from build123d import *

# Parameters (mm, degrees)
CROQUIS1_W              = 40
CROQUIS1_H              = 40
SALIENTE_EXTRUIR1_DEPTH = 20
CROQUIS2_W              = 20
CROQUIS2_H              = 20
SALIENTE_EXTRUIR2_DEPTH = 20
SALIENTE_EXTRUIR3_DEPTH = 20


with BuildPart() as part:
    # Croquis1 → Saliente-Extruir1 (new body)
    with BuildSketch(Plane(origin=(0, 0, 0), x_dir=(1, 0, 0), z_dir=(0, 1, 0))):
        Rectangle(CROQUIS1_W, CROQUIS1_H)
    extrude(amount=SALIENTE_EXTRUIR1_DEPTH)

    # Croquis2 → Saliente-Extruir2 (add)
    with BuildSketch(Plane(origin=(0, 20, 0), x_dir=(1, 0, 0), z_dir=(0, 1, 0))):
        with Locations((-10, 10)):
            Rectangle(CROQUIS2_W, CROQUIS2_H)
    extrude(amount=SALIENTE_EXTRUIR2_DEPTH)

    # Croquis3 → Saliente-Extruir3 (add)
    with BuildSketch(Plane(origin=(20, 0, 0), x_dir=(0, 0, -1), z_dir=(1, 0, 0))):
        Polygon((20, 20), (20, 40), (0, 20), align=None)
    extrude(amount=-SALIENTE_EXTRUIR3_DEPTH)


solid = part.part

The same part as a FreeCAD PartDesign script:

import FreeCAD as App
import Part
import Sketcher
from FreeCAD import Vector


def add_polygon(sketch, points):
    """Adds a closed chain of lines whose ends are joined by coincident constraints."""
    first, n = sketch.GeometryCount, len(points)
    for a, b in zip(points, points[1:] + points[:1]):
        sketch.addGeometry(Part.LineSegment(App.Vector(*a, 0), App.Vector(*b, 0)), False)
    for i in range(n):
        sketch.addConstraint(Sketcher.Constraint("Coincident", first + i, 2, first + (i + 1) % n, 1))

doc = App.newDocument("Part")
body = doc.addObject("PartDesign::Body", "Body")

# Sketch on XZ plane
sketch1 = doc.addObject("Sketcher::SketchObject", "Sketch")
body.addObject(sketch1)
sketch1.AttachmentSupport = (doc.XZ_Plane, [""])
sketch1.MapMode = "FlatFace"
add_polygon(sketch1, [(-20, -20), (-20, 20), (20, 20), (20, -20)])  # lines 0-3
sketch1.addConstraint(Sketcher.Constraint("Vertical", 0))
sketch1.addConstraint(Sketcher.Constraint("Horizontal", 1))
sketch1.addConstraint(Sketcher.Constraint("Vertical", 2))
sketch1.addConstraint(Sketcher.Constraint("Horizontal", 3))
sketch1.addConstraint(Sketcher.Constraint("Symmetric", 0, 2, 2, 2, -1, 1))
sketch1.addConstraint(Sketcher.Constraint("Equal", 3, 0))
sketch1.addConstraint(Sketcher.Constraint("DistanceX", 1, 1, 1, 2, 40.0))
pad1 = doc.addObject("PartDesign::Pad", "Pad")
body.addObject(pad1)
pad1.Profile = sketch1
pad1.Length = 20
pad1.Reversed = True

# Sketch on XZ plane
sketch2 = doc.addObject("Sketcher::SketchObject", "Sketch001")
body.addObject(sketch2)
sketch2.AttachmentSupport = (doc.XZ_Plane, [""])
sketch2.MapMode = "FlatFace"
sketch2.AttachmentOffset = App.Placement(Vector(0, 0, -20), App.Rotation())
add_polygon(sketch2, [(-20, -20), (-20, 0), (0, 0), (0, -20)])  # lines 0-3
sketch2.addConstraint(Sketcher.Constraint("Vertical", 0))
sketch2.addConstraint(Sketcher.Constraint("Horizontal", 1))
sketch2.addConstraint(Sketcher.Constraint("Vertical", 2))
sketch2.addConstraint(Sketcher.Constraint("Horizontal", 3))
sketch2.addConstraint(Sketcher.Constraint("Coincident", 1, 2, -1, 1))
sketch2.addConstraint(Sketcher.Constraint("Equal", 3, 0))
sketch2.addConstraint(Sketcher.Constraint("DistanceX", 1, 1, 1, 2, 20.0))
pad2 = doc.addObject("PartDesign::Pad", "Pad001")
body.addObject(pad2)
pad2.Profile = sketch2
pad2.Length = 20
pad2.Reversed = True

# Sketch on YZ plane
sketch3 = doc.addObject("Sketcher::SketchObject", "Sketch002")
body.addObject(sketch3)
sketch3.AttachmentSupport = (doc.YZ_Plane, [""])
sketch3.MapMode = "FlatFace"
sketch3.AttachmentOffset = App.Placement(Vector(0, 0, 20), App.Rotation())
add_polygon(sketch3, [(20, -20), (40, -20), (20, 0)])  # lines 0-2
sketch3.addConstraint(Sketcher.Constraint("Horizontal", 0))
sketch3.addConstraint(Sketcher.Constraint("Vertical", 2))
sketch3.addConstraint(Sketcher.Constraint("PointOnObject", 1, 2, -1))
sketch3.addConstraint(Sketcher.Constraint("Equal", 0, 2))
sketch3.addConstraint(Sketcher.Constraint("DistanceX", 0, 1, 0, 2, 20.0))
sketch3.addConstraint(Sketcher.Constraint("DistanceX", -1, 1, 0, 2, 40.0))
pad3 = doc.addObject("PartDesign::Pad", "Pad002")
body.addObject(pad3)
pad3.Profile = sketch3
pad3.Length = 20
pad3.Reversed = True

doc.recompute()
